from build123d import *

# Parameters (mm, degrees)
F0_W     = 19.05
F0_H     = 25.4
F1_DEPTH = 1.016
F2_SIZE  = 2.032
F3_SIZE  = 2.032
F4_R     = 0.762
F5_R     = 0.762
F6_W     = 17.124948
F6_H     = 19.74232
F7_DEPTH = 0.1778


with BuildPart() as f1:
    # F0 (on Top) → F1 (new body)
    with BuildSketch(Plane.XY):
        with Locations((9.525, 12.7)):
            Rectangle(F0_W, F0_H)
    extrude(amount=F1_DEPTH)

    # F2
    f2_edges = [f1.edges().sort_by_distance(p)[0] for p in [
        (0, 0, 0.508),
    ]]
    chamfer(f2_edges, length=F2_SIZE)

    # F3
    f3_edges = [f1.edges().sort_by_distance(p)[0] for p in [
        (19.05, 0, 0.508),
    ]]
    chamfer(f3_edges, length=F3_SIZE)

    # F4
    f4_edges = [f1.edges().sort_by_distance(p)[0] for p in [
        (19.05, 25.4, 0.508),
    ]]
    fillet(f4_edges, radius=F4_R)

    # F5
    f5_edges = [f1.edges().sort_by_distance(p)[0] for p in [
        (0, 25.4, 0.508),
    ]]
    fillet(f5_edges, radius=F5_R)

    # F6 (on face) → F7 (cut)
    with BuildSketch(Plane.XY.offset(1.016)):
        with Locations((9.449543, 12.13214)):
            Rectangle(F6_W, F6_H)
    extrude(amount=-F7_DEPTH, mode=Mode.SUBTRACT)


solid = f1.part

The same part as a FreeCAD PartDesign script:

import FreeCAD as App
import Part
import Sketcher
Q = App.Units.Quantity


def edges_at(feature, points):
    """Names of the edges that pass closest to the given points."""
    edges = feature.Shape.Edges
    near = lambda p: min(range(len(edges)), key=lambda i: edges[i].distToShape(Part.Vertex(*p))[0])
    return sorted({f"Edge{near(p) + 1}" for p in points})


def add_polygon(sketch, points):
    """Adds a closed chain of lines whose ends are joined by coincident constraints."""
    first, n = sketch.GeometryCount, len(points)
    for a, b in zip(points, points[1:] + points[:1]):
        sketch.addGeometry(Part.LineSegment(App.Vector(*a, 0), App.Vector(*b, 0)), False)
    for i in range(n):
        sketch.addConstraint(Sketcher.Constraint("Coincident", first + i, 2, first + (i + 1) % n, 1))

doc = App.newDocument("Part")
body = doc.addObject("PartDesign::Body", "Body")

# Sketch on XY plane
sketch1 = doc.addObject("Sketcher::SketchObject", "Sketch")
body.addObject(sketch1)
sketch1.AttachmentSupport = (doc.XY_Plane, [""])
sketch1.MapMode = "FlatFace"
add_polygon(sketch1, [(0, 25.4), (0, 0), (19.05, 0), (19.05, 25.4)])  # lines 0-3
sketch1.addConstraint([
    Sketcher.Constraint("Vertical", 0),
    Sketcher.Constraint("Horizontal", 1),
    Sketcher.Constraint("Vertical", 2),
    Sketcher.Constraint("Horizontal", 3),
    Sketcher.Constraint("Coincident", 0, 2, -1, 1),
    Sketcher.Constraint("DistanceY", 0, 2, 0, 1, Q("1 in")),
    Sketcher.Constraint("DistanceX", 1, 1, 1, 2, Q("0.75 in")),
])
pad1 = doc.addObject("PartDesign::Pad", "Pad")
body.addObject(pad1)
pad1.Profile = sketch1
pad1.Length = Q("0.04 in")
doc.recompute()

chamfer = doc.addObject("PartDesign::Chamfer", "Chamfer")
body.addObject(chamfer)
chamfer.Base = (pad1, edges_at(pad1, [(0, 0, 0.508)]))
chamfer.Size = Q("0.08 in")
doc.recompute()

chamfer2 = doc.addObject("PartDesign::Chamfer", "Chamfer001")
body.addObject(chamfer2)
chamfer2.Base = (chamfer, edges_at(chamfer, [(19.05, 0, 0.508)]))
chamfer2.Size = Q("0.08 in")
doc.recompute()

fillet = doc.addObject("PartDesign::Fillet", "Fillet")
body.addObject(fillet)
fillet.Base = (chamfer2, edges_at(chamfer2, [(19.05, 25.4, 0.508)]))
fillet.Radius = Q("0.03 in")
doc.recompute()

fillet2 = doc.addObject("PartDesign::Fillet", "Fillet001")
body.addObject(fillet2)
fillet2.Base = (fillet, edges_at(fillet, [(0, 25.4, 0.508)]))
fillet2.Radius = Q("0.03 in")

# Sketch on XY plane
sketch2 = doc.addObject("Sketcher::SketchObject", "Sketch001")
body.addObject(sketch2)
sketch2.AttachmentSupport = (doc.XY_Plane, [""])
sketch2.MapMode = "FlatFace"
sketch2.AttachmentOffset = App.Placement(App.Vector(0, 0, 0.04 * 25.4), App.Rotation())
add_polygon(sketch2, [(0.887069, 22.0033), (0.887069, 2.26098), (18.012017, 2.26098), (18.012017, 22.0033)])  # lines 0-3
sketch2.addConstraint([
    Sketcher.Constraint("Vertical", 0),
    Sketcher.Constraint("Horizontal", 1),
    Sketcher.Constraint("Vertical", 2),
    Sketcher.Constraint("Horizontal", 3),
    Sketcher.Constraint("DistanceX", 1, 1, 1, 2, 17.124948),
    Sketcher.Constraint("DistanceY", 0, 2, 0, 1, 19.74232),
    Sketcher.Constraint("DistanceY", -1, 1, 2, 2, 22.0033),
    Sketcher.Constraint("DistanceX", -1, 1, 0, 2, 0.887069),
])
pocket1 = doc.addObject("PartDesign::Pocket", "Pocket")
body.addObject(pocket1)
pocket1.Profile = sketch2
pocket1.Length = Q("0.007 in")

doc.recompute()
